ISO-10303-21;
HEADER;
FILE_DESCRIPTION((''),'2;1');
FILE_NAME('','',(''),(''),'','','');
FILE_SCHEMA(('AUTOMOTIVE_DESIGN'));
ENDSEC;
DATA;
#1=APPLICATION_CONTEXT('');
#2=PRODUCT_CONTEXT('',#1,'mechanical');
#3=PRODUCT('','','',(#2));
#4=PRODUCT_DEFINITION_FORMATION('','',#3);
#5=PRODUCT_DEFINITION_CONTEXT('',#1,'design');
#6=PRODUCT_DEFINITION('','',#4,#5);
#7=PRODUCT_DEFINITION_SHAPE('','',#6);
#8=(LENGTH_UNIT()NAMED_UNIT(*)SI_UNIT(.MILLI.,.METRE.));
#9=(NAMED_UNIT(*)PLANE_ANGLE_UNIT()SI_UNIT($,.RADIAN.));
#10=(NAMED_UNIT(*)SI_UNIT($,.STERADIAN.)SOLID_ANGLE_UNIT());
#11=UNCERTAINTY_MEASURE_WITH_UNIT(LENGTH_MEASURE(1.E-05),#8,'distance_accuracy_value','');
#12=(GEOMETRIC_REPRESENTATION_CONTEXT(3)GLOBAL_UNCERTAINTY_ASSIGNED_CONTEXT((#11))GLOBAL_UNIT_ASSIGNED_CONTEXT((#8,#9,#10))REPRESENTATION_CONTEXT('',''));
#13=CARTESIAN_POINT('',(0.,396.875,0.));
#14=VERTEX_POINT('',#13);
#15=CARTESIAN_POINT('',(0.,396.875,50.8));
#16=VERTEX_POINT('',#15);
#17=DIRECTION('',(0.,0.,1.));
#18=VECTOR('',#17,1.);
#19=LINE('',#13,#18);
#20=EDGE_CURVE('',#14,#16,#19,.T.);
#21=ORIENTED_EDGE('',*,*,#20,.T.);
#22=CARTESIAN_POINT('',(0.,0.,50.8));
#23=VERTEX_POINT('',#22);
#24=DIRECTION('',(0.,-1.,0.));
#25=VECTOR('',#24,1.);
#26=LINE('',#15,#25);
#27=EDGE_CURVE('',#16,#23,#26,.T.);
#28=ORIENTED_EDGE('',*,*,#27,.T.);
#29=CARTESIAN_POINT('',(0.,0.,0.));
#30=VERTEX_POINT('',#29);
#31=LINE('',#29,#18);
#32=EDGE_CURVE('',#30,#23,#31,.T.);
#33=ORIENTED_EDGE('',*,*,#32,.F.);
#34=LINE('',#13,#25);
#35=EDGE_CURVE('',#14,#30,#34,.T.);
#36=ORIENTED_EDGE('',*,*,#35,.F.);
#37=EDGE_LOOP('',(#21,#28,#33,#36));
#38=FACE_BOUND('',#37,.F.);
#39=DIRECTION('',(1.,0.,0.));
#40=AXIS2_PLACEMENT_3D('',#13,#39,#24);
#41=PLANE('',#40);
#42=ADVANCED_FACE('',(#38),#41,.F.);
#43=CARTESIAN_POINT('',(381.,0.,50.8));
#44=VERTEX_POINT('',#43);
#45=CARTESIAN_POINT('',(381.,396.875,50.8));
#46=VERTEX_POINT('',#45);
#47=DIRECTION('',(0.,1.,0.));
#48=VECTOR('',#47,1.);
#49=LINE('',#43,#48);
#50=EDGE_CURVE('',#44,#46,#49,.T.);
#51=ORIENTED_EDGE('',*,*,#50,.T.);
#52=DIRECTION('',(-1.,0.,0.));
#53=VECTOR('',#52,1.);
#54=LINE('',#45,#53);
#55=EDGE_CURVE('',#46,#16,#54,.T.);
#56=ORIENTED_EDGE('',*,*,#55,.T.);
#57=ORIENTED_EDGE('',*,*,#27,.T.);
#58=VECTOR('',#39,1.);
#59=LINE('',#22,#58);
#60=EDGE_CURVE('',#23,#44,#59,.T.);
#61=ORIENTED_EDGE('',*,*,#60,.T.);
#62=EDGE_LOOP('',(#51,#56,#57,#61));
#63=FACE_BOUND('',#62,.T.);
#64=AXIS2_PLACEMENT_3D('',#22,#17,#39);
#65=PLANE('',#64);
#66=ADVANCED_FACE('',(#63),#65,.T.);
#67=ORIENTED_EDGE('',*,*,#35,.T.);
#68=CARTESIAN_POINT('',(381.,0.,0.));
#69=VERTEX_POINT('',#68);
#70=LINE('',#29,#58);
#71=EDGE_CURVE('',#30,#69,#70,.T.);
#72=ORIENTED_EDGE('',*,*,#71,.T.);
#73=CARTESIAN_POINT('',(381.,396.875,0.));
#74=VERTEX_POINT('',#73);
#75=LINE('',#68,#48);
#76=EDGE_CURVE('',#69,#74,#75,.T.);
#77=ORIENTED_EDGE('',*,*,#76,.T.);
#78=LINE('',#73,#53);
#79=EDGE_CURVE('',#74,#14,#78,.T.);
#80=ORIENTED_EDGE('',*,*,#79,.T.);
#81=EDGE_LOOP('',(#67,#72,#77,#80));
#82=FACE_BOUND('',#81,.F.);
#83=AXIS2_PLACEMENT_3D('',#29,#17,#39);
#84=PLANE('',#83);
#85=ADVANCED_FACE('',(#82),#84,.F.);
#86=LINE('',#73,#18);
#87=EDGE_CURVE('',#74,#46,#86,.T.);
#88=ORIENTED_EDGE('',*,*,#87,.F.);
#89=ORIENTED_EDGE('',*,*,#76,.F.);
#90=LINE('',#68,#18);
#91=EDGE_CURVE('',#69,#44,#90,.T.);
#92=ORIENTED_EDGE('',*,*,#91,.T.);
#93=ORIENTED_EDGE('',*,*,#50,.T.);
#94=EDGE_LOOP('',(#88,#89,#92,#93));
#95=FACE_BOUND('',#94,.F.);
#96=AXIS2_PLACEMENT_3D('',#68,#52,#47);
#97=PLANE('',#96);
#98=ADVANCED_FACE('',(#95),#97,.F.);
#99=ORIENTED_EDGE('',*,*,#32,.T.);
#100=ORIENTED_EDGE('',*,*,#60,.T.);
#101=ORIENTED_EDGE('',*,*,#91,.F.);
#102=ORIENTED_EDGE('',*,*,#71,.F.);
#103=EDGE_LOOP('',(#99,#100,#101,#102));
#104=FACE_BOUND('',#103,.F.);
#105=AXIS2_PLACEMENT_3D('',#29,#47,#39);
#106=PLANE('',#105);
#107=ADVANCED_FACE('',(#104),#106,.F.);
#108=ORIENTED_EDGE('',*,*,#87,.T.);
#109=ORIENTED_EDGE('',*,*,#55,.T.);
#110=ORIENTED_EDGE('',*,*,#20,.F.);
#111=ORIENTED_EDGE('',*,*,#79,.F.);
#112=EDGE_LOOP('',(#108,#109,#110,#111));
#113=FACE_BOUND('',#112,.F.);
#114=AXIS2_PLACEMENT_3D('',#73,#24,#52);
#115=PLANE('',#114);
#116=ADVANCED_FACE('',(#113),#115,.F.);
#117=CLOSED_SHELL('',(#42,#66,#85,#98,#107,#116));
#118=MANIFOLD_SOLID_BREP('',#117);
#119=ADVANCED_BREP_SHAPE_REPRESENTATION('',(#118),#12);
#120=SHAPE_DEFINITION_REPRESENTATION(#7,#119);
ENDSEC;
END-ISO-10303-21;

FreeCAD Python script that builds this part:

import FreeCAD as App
import Part
import Sketcher

V = App.Vector
Q = App.Units.Quantity

doc = App.newDocument("Part")
body = doc.addObject("PartDesign::Body", "Body")

sketch1 = body.newObject("Sketcher::SketchObject", "Sketch")
sketch1.AttachmentSupport = (doc.getObject("XY_Plane"), [""])
sketch1.MapMode = "FlatFace"
sketch1.addGeometry([
    Part.LineSegment(V(0, 396.875, 0), V(0, 0, 0)),
    Part.LineSegment(V(0, 0, 0), V(381, 0, 0)),
    Part.LineSegment(V(381, 0, 0), V(381, 396.875, 0)),
    Part.LineSegment(V(381, 396.875, 0), V(0, 396.875, 0)),
], False)
sketch1.addConstraint([
    Sketcher.Constraint("Coincident", 0, 2, 1, 1),
    Sketcher.Constraint("Coincident", 1, 2, 2, 1),
    Sketcher.Constraint("Coincident", 2, 2, 3, 1),
    Sketcher.Constraint("Coincident", 3, 2, 0, 1),
    Sketcher.Constraint("Vertical", 0),
    Sketcher.Constraint("Horizontal", 1),
    Sketcher.Constraint("Vertical", 2),
    Sketcher.Constraint("Horizontal", 3),
    Sketcher.Constraint("Coincident", 0, 2, -1, 1),
    Sketcher.Constraint("DistanceX", 1, 1, 1, 2, Q("15 in")),
    Sketcher.Constraint("DistanceY", 0, 2, 0, 1, Q("15.625 in")),
])
pad1 = body.newObject("PartDesign::Pad", "Pad")
pad1.Profile = sketch1
pad1.Length = Q("2 in")

doc.recompute()
